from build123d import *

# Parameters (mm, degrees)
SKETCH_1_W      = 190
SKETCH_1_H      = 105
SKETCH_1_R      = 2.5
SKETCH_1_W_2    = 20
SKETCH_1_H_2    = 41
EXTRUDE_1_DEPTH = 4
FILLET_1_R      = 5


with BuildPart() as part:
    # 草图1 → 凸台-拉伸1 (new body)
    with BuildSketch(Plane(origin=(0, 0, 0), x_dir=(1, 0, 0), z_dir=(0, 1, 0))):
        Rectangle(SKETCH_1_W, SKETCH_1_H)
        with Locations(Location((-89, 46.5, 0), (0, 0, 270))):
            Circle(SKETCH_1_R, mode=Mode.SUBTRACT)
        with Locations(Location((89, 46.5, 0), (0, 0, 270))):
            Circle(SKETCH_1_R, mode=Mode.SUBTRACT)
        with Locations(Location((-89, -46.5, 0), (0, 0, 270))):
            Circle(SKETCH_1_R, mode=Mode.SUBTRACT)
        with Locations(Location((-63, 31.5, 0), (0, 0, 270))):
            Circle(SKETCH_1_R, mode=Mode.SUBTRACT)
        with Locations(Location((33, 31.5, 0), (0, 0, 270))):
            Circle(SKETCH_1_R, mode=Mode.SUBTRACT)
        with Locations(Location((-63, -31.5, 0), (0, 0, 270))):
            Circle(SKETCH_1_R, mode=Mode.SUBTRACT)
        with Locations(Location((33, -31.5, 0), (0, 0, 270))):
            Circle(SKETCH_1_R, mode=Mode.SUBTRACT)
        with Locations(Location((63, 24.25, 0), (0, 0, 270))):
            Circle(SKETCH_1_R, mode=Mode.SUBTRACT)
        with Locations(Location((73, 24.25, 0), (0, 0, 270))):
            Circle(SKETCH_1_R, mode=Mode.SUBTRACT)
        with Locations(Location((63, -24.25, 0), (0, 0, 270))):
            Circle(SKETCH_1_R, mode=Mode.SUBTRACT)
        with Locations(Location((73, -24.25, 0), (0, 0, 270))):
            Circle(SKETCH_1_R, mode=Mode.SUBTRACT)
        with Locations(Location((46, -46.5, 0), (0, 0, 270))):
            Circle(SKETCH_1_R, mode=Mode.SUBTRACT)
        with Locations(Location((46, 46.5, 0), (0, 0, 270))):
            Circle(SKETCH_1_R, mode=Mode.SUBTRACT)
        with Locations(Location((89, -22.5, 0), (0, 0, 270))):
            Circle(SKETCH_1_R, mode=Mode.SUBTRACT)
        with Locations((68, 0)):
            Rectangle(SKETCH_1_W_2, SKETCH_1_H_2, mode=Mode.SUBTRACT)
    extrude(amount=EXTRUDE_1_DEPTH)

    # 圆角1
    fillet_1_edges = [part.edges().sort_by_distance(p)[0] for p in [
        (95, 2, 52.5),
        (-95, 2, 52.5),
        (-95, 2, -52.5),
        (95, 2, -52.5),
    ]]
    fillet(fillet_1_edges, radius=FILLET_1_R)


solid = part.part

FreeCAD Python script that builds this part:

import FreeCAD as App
import Part
import Sketcher

V = App.Vector


def edges_at(feature, points):
    """Names of the edges that pass closest to the given points."""
    edges = feature.Shape.Edges
    near = lambda p: min(range(len(edges)), key=lambda i: edges[i].distToShape(Part.Vertex(*p))[0])
    return sorted({f"Edge{near(p) + 1}" for p in points})

doc = App.newDocument("Part")
body = doc.addObject("PartDesign::Body", "Body")

# Sketch on XZ plane
sketch1 = body.newObject("Sketcher::SketchObject", "Sketch")
sketch1.AttachmentSupport = (doc.getObject("XZ_Plane"), [""])
sketch1.MapMode = "FlatFace"
sketch1.addGeometry(Part.LineSegment(V(-95, -52.5, 0), V(-95, 52.5, 0)), False)
sketch1.addGeometry(Part.LineSegment(V(-95, 52.5, 0), V(95, 52.5, 0)), False)
sketch1.addGeometry(Part.LineSegment(V(95, 52.5, 0), V(95, -52.5, 0)), False)
sketch1.addGeometry(Part.LineSegment(V(95, -52.5, 0), V(-95, -52.5, 0)), False)
sketch1.addGeometry(Part.Circle(V(-89, 46.5, 0), V(0, 0, 1), 2.5), False)
sketch1.addGeometry(Part.Circle(V(-63, 31.5, 0), V(0, 0, 1), 2.5), False)
sketch1.addGeometry(Part.Circle(V(33, 31.5, 0), V(0, 0, 1), 2.5), False)
sketch1.addGeometry(Part.Circle(V(46, 46.5, 0), V(0, 0, 1), 2.5), False)
sketch1.addGeometry(Part.Circle(V(63, 24.2, 0), V(0, 0, 1), 2.5), False)
sketch1.addGeometry(Part.Circle(V(73, 24.2, 0), V(0, 0, 1), 2.5), False)
sketch1.addGeometry(Part.Circle(V(89, 22.5, 0), V(0, 0, 1), 2.5), False)
sketch1.addGeometry(Part.LineSegment(V(78, 20.5, 0), V(58, 20.5, 0)), False)
sketch1.addGeometry(Part.LineSegment(V(58, 20.5, 0), V(58, -20.5, 0)), False)
sketch1.addGeometry(Part.LineSegment(V(58, -20.5, 0), V(78, -20.5, 0)), False)
sketch1.addGeometry(Part.LineSegment(V(78, -20.5, 0), V(78, 20.5, 0)), False)
sketch1.addGeometry(Part.Circle(V(-63, -31.5, 0), V(0, 0, 1), 2.5), False)
sketch1.addGeometry(Part.Circle(V(-89, -46.5, 0), V(0, 0, 1), 2.5), False)
sketch1.addGeometry(Part.Circle(V(63, -24.2, 0), V(0, 0, 1), 2.5), False)
sketch1.addGeometry(Part.Circle(V(73, -24.2, 0), V(0, 0, 1), 2.5), False)
sketch1.addGeometry(Part.Circle(V(33, -31.5, 0), V(0, 0, 1), 2.5), False)
sketch1.addGeometry(Part.Circle(V(46, -46.5, 0), V(0, 0, 1), 2.5), False)
sketch1.addGeometry(Part.Circle(V(89, -46.5, 0), V(0, 0, 1), 2.5), False)
sketch1.addConstraint(Sketcher.Constraint("Coincident", 0, 2, 1, 1))
sketch1.addConstraint(Sketcher.Constraint("Coincident", 1, 2, 2, 1))
sketch1.addConstraint(Sketcher.Constraint("Coincident", 2, 2, 3, 1))
sketch1.addConstraint(Sketcher.Constraint("Coincident", 3, 2, 0, 1))
sketch1.addConstraint(Sketcher.Constraint("Coincident", 11, 2, 12, 1))
sketch1.addConstraint(Sketcher.Constraint("Coincident", 12, 2, 13, 1))
sketch1.addConstraint(Sketcher.Constraint("Coincident", 13, 2, 14, 1))
sketch1.addConstraint(Sketcher.Constraint("Coincident", 14, 2, 11, 1))
sketch1.addConstraint(Sketcher.Constraint("Vertical", 0))
sketch1.addConstraint(Sketcher.Constraint("Horizontal", 1))
sketch1.addConstraint(Sketcher.Constraint("Vertical", 2))
sketch1.addConstraint(Sketcher.Constraint("Horizontal", 3))
sketch1.addConstraint(Sketcher.Constraint("Horizontal", 11))
sketch1.addConstraint(Sketcher.Constraint("Vertical", 12))
sketch1.addConstraint(Sketcher.Constraint("Horizontal", 13))
sketch1.addConstraint(Sketcher.Constraint("Vertical", 14))
sketch1.addConstraint(Sketcher.Constraint("Equal", 4, 5))
sketch1.addConstraint(Sketcher.Constraint("Equal", 5, 6))
sketch1.addConstraint(Sketcher.Constraint("Equal", 6, 7))
sketch1.addConstraint(Sketcher.Constraint("Equal", 7, 8))
sketch1.addConstraint(Sketcher.Constraint("Equal", 8, 9))
sketch1.addConstraint(Sketcher.Constraint("Equal", 9, 10))
sketch1.addConstraint(Sketcher.Constraint("Equal", 10, 15))
sketch1.addConstraint(Sketcher.Constraint("Equal", 15, 16))
sketch1.addConstraint(Sketcher.Constraint("Equal", 16, 17))
sketch1.addConstraint(Sketcher.Constraint("Equal", 17, 18))
sketch1.addConstraint(Sketcher.Constraint("Equal", 18, 19))
sketch1.addConstraint(Sketcher.Constraint("Equal", 19, 20))
sketch1.addConstraint(Sketcher.Constraint("Equal", 20, 21))
sketch1.addConstraint(Sketcher.Constraint("Symmetric", 4, 3, 21, 3, -1, 1))
sketch1.addConstraint(Sketcher.Constraint("Symmetric", 0, 2, 2, 2, -1, 1))
sketch1.addConstraint(Sketcher.Constraint("Symmetric", 16, 3, 21, 3, -2))
sketch1.addConstraint(Sketcher.Constraint("Symmetric", 5, 3, 15, 3, -1))
sketch1.addConstraint(Sketcher.Constraint("Symmetric", 8, 3, 17, 3, -1))
sketch1.addConstraint(Sketcher.Constraint("Symmetric", 9, 3, 18, 3, -1))
sketch1.addConstraint(Sketcher.Constraint("Symmetric", 6, 3, 19, 3, -1))
sketch1.addConstraint(Sketcher.Constraint("Symmetric", 7, 3, 20, 3, -1))
sketch1.addConstraint(Sketcher.Constraint("Horizontal", 5, 3, 6, 3))
sketch1.addConstraint(Sketcher.Constraint("Horizontal", 4, 3, 7, 3))
sketch1.addConstraint(Sketcher.Constraint("Horizontal", 8, 3, 9, 3))
sketch1.addConstraint(Sketcher.Constraint("Vertical", 10, 3, 21, 3))
sketch1.addConstraint(Sketcher.Constraint("Diameter", 4, 5.0))
sketch1.addConstraint(Sketcher.Constraint("DistanceX", 1, 1, 1, 2, 190.0))
sketch1.addConstraint(Sketcher.Constraint("DistanceX", 11, 2, 11, 1, 20.0))
sketch1.addConstraint(Sketcher.Constraint("DistanceY", 0, 1, 0, 2, 105.0))
sketch1.addConstraint(Sketcher.Constraint("DistanceY", 12, 2, 12, 1, 41.0))
sketch1.addConstraint(Sketcher.Constraint("DistanceX", 4, 3, -1, 1, 89.0))
sketch1.addConstraint(Sketcher.Constraint("DistanceX", 5, 3, -1, 1, 63.0))
sketch1.addConstraint(Sketcher.Constraint("DistanceX", -1, 1, 6, 3, 33.0))
sketch1.addConstraint(Sketcher.Constraint("DistanceX", -1, 1, 7, 3, 46.0))
sketch1.addConstraint(Sketcher.Constraint("DistanceX", -1, 1, 8, 3, 63.0))
sketch1.addConstraint(Sketcher.Constraint("DistanceX", -1, 1, 9, 3, 73.0))
sketch1.addConstraint(Sketcher.Constraint("DistanceX", -1, 1, 11, 2, 58.0))
sketch1.addConstraint(Sketcher.Constraint("DistanceY", 5, 3, 4, 3, 15.0))
sketch1.addConstraint(Sketcher.Constraint("DistanceY", 10, 3, 7, 3, 24.0))
sketch1.addConstraint(Sketcher.Constraint("DistanceY", 15, 3, 5, 3, 63.0))
sketch1.addConstraint(Sketcher.Constraint("DistanceY", 11, 2, 6, 3, 11.0))
sketch1.addConstraint(Sketcher.Constraint("DistanceY", 17, 3, 8, 3, 48.5))
pad1 = body.newObject("PartDesign::Pad", "Pad")
pad1.Profile = sketch1
pad1.Length = 4
pad1.Reversed = True
doc.recompute()

fillet = body.newObject("PartDesign::Fillet", "Fillet")
fillet.Base = (pad1, edges_at(pad1, [
    (95, 2, 52.5),
    (-95, 2, 52.5),
    (-95, 2, -52.5),
    (95, 2, -52.5),
]))
fillet.Radius = 5

doc.recompute()
